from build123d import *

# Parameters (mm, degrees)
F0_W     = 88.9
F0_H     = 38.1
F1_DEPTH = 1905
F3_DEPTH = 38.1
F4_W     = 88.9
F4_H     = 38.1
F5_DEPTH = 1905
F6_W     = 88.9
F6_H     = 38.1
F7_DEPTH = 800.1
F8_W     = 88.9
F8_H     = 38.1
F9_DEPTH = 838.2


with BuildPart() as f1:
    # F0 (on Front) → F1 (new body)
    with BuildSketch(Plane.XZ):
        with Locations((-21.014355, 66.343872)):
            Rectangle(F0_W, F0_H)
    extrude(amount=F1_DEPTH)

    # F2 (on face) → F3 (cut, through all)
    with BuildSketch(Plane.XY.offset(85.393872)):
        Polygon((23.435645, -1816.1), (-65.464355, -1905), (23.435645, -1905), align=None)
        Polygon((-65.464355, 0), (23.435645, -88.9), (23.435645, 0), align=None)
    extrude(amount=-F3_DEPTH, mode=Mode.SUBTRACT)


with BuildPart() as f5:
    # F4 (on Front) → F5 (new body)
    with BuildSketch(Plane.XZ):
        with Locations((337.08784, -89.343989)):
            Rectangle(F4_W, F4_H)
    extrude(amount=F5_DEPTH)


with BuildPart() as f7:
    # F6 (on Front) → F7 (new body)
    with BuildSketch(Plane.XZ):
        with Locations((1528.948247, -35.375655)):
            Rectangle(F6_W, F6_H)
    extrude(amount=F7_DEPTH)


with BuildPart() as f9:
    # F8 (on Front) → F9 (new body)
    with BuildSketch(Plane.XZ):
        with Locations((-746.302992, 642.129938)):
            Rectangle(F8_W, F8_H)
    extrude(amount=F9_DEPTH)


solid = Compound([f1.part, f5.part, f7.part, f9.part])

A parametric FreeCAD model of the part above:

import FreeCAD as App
import Part
import Sketcher
from FreeCAD import Vector
Q = App.Units.Quantity

doc = App.newDocument("Part")
body = doc.addObject("PartDesign::Body", "Body")

sketch1 = body.newObject("Sketcher::SketchObject", "Sketch")
sketch1.AttachmentSupport = (doc.getObject("XZ_Plane"), [""])
sketch1.MapMode = "FlatFace"
sketch1.addGeometry(Part.LineSegment(Vector(-65, 85, 0), Vector(-65, 47, 0)), False)
sketch1.addGeometry(Part.LineSegment(Vector(-65, 47, 0), Vector(23, 47, 0)), False)
sketch1.addGeometry(Part.LineSegment(Vector(23, 47, 0), Vector(23, 85, 0)), False)
sketch1.addGeometry(Part.LineSegment(Vector(23, 85, 0), Vector(-65, 85, 0)), False)
sketch1.addConstraint(Sketcher.Constraint("Coincident", 0, 2, 1, 1))
sketch1.addConstraint(Sketcher.Constraint("Coincident", 1, 2, 2, 1))
sketch1.addConstraint(Sketcher.Constraint("Coincident", 2, 2, 3, 1))
sketch1.addConstraint(Sketcher.Constraint("Coincident", 3, 2, 0, 1))
sketch1.addConstraint(Sketcher.Constraint("Vertical", 0))
sketch1.addConstraint(Sketcher.Constraint("Horizontal", 1))
sketch1.addConstraint(Sketcher.Constraint("Vertical", 2))
sketch1.addConstraint(Sketcher.Constraint("Horizontal", 3))
sketch1.addConstraint(Sketcher.Constraint("DistanceX", 1, 1, 1, 2, Q("3.5 in")))
sketch1.addConstraint(Sketcher.Constraint("DistanceY", 0, 2, 0, 1, Q("1.5 in")))
sketch1.addConstraint(Sketcher.Constraint("DistanceY", -1, 1, 2, 2, 85.393872))
sketch1.addConstraint(Sketcher.Constraint("DistanceX", 0, 2, -1, 1, 65.464355))
pad1 = body.newObject("PartDesign::Pad", "Pad")
pad1.Profile = sketch1
pad1.Length = Q("75 in")

sketch2 = body.newObject("Sketcher::SketchObject", "Sketch001")
sketch2.AttachmentSupport = (doc.getObject("XY_Plane"), [""])
sketch2.MapMode = "FlatFace"
sketch2.AttachmentOffset = App.Placement(Vector(0, 0, 85.393872), App.Rotation())
sketch2.addGeometry(Part.LineSegment(Vector(23, -1816, 0), Vector(-65, -1905, 0)), False)
sketch2.addGeometry(Part.LineSegment(Vector(-65, -1905, 0), Vector(23, -1905, 0)), False)
sketch2.addGeometry(Part.LineSegment(Vector(23, -1905, 0), Vector(23, -1816, 0)), False)
sketch2.addGeometry(Part.LineSegment(Vector(-65, 0, 0), Vector(23, -89, 0)), False)
sketch2.addGeometry(Part.LineSegment(Vector(23, -89, 0), Vector(23, 0, 0)), False)
sketch2.addGeometry(Part.LineSegment(Vector(23, 0, 0), Vector(-65, 0, 0)), False)
sketch2.addConstraint(Sketcher.Constraint("Coincident", 0, 2, 1, 1))
sketch2.addConstraint(Sketcher.Constraint("Coincident", 1, 2, 2, 1))
sketch2.addConstraint(Sketcher.Constraint("Coincident", 2, 2, 0, 1))
sketch2.addConstraint(Sketcher.Constraint("Coincident", 3, 2, 4, 1))
sketch2.addConstraint(Sketcher.Constraint("Coincident", 4, 2, 5, 1))
sketch2.addConstraint(Sketcher.Constraint("Coincident", 5, 2, 3, 1))
sketch2.addConstraint(Sketcher.Constraint("Horizontal", 1))
sketch2.addConstraint(Sketcher.Constraint("Vertical", 2))
sketch2.addConstraint(Sketcher.Constraint("Vertical", 4))
sketch2.addConstraint(Sketcher.Constraint("Horizontal", 5))
sketch2.addConstraint(Sketcher.Constraint("PointOnObject", 4, 2, -1))
sketch2.addConstraint(Sketcher.Constraint("Perpendicular", 0, 3))
sketch2.addConstraint(Sketcher.Constraint("Vertical", 2, 2, 3, 2))
sketch2.addConstraint(Sketcher.Constraint("Vertical", 0, 2, 5, 2))
sketch2.addConstraint(Sketcher.Constraint("Equal", 5, 2))
sketch2.addConstraint(Sketcher.Constraint("DistanceX", 1, 1, 1, 2, Q("3.5 in")))
sketch2.addConstraint(Sketcher.Constraint("DistanceY", 0, 2, -1, 1, Q("75 in")))
sketch2.addConstraint(Sketcher.Constraint("DistanceX", 0, 2, -1, 1, 65.464355))
pocket1 = body.newObject("PartDesign::Pocket", "Pocket")
pocket1.Profile = sketch2
pocket1.Type = "ThroughAll"
body2 = doc.addObject("PartDesign::Body", "Body001")

sketch3 = body2.newObject("Sketcher::SketchObject", "Sketch002")
sketch3.AttachmentSupport = (doc.getObject("XZ_Plane001"), [""])
sketch3.MapMode = "FlatFace"
sketch3.addGeometry(Part.LineSegment(Vector(293, -70, 0), Vector(293, -108, 0)), False)
sketch3.addGeometry(Part.LineSegment(Vector(293, -108, 0), Vector(382, -108, 0)), False)
sketch3.addGeometry(Part.LineSegment(Vector(382, -108, 0), Vector(382, -70, 0)), False)
sketch3.addGeometry(Part.LineSegment(Vector(382, -70, 0), Vector(293, -70, 0)), False)
sketch3.addConstraint(Sketcher.Constraint("Coincident", 0, 2, 1, 1))
sketch3.addConstraint(Sketcher.Constraint("Coincident", 1, 2, 2, 1))
sketch3.addConstraint(Sketcher.Constraint("Coincident", 2, 2, 3, 1))
sketch3.addConstraint(Sketcher.Constraint("Coincident", 3, 2, 0, 1))
sketch3.addConstraint(Sketcher.Constraint("Vertical", 0))
sketch3.addConstraint(Sketcher.Constraint("Horizontal", 1))
sketch3.addConstraint(Sketcher.Constraint("Vertical", 2))
sketch3.addConstraint(Sketcher.Constraint("Horizontal", 3))
sketch3.addConstraint(Sketcher.Constraint("DistanceX", 1, 1, 1, 2, Q("3.5 in")))
sketch3.addConstraint(Sketcher.Constraint("DistanceY", 0, 2, 0, 1, Q("1.5 in")))
sketch3.addConstraint(Sketcher.Constraint("DistanceX", -1, 1, 0, 2, 292.63784))
sketch3.addConstraint(Sketcher.Constraint("DistanceY", 0, 2, -1, 1, 108.393989))
pad2 = body2.newObject("PartDesign::Pad", "Pad001")
pad2.Profile = sketch3
pad2.Length = Q("75 in")
body3 = doc.addObject("PartDesign::Body", "Body002")

sketch4 = body3.newObject("Sketcher::SketchObject", "Sketch003")
sketch4.AttachmentSupport = (doc.getObject("XZ_Plane002"), [""])
sketch4.MapMode = "FlatFace"
sketch4.addGeometry(Part.LineSegment(Vector(1484, -16, 0), Vector(1484, -54, 0)), False)
sketch4.addGeometry(Part.LineSegment(Vector(1484, -54, 0), Vector(1573, -54, 0)), False)
sketch4.addGeometry(Part.LineSegment(Vector(1573, -54, 0), Vector(1573, -16, 0)), False)
sketch4.addGeometry(Part.LineSegment(Vector(1573, -16, 0), Vector(1484, -16, 0)), False)
sketch4.addConstraint(Sketcher.Constraint("Coincident", 0, 2, 1, 1))
sketch4.addConstraint(Sketcher.Constraint("Coincident", 1, 2, 2, 1))
sketch4.addConstraint(Sketcher.Constraint("Coincident", 2, 2, 3, 1))
sketch4.addConstraint(Sketcher.Constraint("Coincident", 3, 2, 0, 1))
sketch4.addConstraint(Sketcher.Constraint("Vertical", 0))
sketch4.addConstraint(Sketcher.Constraint("Horizontal", 1))
sketch4.addConstraint(Sketcher.Constraint("Vertical", 2))
sketch4.addConstraint(Sketcher.Constraint("Horizontal", 3))
sketch4.addConstraint(Sketcher.Constraint("DistanceX", 1, 1, 1, 2, Q("3.5 in")))
sketch4.addConstraint(Sketcher.Constraint("DistanceY", 0, 2, 0, 1, Q("1.5 in")))
sketch4.addConstraint(Sketcher.Constraint("DistanceX", -1, 1, 0, 2, 1484.498247))
sketch4.addConstraint(Sketcher.Constraint("DistanceY", 0, 2, -1, 1, 54.425655))
pad3 = body3.newObject("PartDesign::Pad", "Pad002")
pad3.Profile = sketch4
pad3.Length = Q("31.5 in")
body4 = doc.addObject("PartDesign::Body", "Body003")

sketch5 = body4.newObject("Sketcher::SketchObject", "Sketch004")
sketch5.AttachmentSupport = (doc.getObject("XZ_Plane003"), [""])
sketch5.MapMode = "FlatFace"
sketch5.addGeometry(Part.LineSegment(Vector(-791, 661, 0), Vector(-791, 623, 0)), False)
sketch5.addGeometry(Part.LineSegment(Vector(-791, 623, 0), Vector(-702, 623, 0)), False)
sketch5.addGeometry(Part.LineSegment(Vector(-702, 623, 0), Vector(-702, 661, 0)), False)
sketch5.addGeometry(Part.LineSegment(Vector(-702, 661, 0), Vector(-791, 661, 0)), False)
sketch5.addConstraint(Sketcher.Constraint("Coincident", 0, 2, 1, 1))
sketch5.addConstraint(Sketcher.Constraint("Coincident", 1, 2, 2, 1))
sketch5.addConstraint(Sketcher.Constraint("Coincident", 2, 2, 3, 1))
sketch5.addConstraint(Sketcher.Constraint("Coincident", 3, 2, 0, 1))
sketch5.addConstraint(Sketcher.Constraint("Vertical", 0))
sketch5.addConstraint(Sketcher.Constraint("Horizontal", 1))
sketch5.addConstraint(Sketcher.Constraint("Vertical", 2))
sketch5.addConstraint(Sketcher.Constraint("Horizontal", 3))
sketch5.addConstraint(Sketcher.Constraint("DistanceX", 1, 1, 1, 2, Q("3.5 in")))
sketch5.addConstraint(Sketcher.Constraint("DistanceY", 0, 2, 0, 1, Q("1.5 in")))
sketch5.addConstraint(Sketcher.Constraint("DistanceX", 0, 2, -1, 1, 790.752992))
sketch5.addConstraint(Sketcher.Constraint("DistanceY", -1, 1, 0, 2, 623.079938))
pad4 = body4.newObject("PartDesign::Pad", "Pad003")
pad4.Profile = sketch5
pad4.Length = Q("33 in")

doc.recompute()
